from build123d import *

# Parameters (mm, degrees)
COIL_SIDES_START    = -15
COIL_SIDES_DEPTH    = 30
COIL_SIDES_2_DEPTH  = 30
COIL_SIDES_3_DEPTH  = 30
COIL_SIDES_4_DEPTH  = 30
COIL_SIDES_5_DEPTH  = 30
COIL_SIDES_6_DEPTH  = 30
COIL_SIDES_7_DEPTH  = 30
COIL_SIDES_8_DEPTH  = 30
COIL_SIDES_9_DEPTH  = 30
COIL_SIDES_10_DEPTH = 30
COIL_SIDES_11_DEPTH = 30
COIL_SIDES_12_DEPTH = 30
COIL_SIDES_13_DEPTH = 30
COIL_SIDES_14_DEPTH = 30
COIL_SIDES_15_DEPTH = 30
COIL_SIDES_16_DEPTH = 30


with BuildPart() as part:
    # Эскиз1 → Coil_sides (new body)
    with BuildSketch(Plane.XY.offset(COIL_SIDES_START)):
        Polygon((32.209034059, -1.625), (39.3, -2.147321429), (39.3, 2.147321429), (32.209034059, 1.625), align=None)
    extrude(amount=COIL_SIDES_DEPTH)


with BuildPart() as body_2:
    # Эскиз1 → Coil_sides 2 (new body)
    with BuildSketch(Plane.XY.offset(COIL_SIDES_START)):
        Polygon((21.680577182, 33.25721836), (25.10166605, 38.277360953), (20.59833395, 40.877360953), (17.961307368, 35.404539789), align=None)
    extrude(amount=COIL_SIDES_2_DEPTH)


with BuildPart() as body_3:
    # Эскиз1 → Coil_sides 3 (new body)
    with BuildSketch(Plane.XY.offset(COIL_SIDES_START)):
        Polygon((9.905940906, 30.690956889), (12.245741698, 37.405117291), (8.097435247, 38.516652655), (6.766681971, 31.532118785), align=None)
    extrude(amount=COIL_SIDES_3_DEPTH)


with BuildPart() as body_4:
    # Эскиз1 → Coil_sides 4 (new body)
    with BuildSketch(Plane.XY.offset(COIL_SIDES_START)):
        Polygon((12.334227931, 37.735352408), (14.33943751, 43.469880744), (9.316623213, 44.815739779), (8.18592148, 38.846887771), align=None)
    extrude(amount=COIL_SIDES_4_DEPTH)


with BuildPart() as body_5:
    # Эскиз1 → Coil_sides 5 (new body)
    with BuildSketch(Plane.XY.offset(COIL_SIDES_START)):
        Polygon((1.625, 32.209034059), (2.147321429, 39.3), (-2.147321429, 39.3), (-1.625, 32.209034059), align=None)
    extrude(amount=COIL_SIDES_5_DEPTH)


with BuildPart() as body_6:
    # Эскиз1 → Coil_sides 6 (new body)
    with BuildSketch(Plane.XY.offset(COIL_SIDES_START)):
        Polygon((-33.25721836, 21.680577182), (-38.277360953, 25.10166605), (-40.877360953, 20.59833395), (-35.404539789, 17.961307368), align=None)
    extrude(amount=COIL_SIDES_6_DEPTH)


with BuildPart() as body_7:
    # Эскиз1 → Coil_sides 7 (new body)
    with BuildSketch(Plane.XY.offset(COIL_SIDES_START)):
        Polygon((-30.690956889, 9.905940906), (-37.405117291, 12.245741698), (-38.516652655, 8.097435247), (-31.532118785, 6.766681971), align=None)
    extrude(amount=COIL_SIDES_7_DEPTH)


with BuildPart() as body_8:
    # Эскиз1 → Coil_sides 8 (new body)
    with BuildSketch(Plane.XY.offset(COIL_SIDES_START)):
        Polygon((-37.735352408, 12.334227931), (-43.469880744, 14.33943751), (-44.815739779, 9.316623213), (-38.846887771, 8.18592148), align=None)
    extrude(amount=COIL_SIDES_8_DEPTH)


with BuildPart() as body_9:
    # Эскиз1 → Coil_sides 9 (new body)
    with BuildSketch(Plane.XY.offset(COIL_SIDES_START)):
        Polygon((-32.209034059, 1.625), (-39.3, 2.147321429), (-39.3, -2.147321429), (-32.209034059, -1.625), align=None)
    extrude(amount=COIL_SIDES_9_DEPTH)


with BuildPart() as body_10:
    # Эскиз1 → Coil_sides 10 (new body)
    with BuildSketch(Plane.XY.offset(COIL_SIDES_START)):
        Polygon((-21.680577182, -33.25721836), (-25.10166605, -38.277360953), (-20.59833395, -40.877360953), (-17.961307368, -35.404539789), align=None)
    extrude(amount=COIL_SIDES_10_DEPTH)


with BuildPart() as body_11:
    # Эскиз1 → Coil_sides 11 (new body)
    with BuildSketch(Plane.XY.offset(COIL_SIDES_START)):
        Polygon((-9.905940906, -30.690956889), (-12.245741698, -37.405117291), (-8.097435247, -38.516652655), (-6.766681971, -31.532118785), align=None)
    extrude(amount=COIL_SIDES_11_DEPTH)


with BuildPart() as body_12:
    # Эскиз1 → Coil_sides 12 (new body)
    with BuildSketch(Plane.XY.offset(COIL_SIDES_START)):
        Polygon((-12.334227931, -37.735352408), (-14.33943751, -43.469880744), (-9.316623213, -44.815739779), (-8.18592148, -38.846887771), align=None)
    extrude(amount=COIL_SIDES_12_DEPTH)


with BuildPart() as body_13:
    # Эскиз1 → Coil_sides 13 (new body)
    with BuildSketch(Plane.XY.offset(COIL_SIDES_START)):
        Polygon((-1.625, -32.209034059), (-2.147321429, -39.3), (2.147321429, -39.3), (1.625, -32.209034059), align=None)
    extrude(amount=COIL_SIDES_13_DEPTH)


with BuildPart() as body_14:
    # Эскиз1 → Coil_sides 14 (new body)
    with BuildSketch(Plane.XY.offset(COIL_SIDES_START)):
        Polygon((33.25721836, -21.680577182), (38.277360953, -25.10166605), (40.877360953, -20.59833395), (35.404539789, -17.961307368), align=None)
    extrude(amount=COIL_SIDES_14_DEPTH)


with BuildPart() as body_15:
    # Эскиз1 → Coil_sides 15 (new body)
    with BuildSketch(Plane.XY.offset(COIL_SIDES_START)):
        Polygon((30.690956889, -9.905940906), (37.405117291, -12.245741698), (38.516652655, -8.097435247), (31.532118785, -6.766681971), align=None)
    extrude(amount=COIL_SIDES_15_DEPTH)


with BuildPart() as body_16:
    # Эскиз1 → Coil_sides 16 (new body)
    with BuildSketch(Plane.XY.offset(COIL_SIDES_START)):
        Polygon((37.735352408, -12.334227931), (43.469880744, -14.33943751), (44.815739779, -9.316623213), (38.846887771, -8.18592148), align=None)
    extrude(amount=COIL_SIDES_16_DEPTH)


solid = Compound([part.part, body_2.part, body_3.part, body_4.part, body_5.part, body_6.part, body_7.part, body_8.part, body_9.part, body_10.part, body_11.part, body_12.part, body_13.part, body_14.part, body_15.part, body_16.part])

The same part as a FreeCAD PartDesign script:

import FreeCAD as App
import Part
import Sketcher
Q = App.Units.Quantity

doc = App.newDocument("Part")
params = doc.addObject("Spreadsheet::Sheet", "Params")
for row, (alias, value) in enumerate([
    ("sketch1_height", "3.25 mm"),
    ("pad1_length", "30 mm"),
    ("sketch2_length", "5.2 mm"),
    ("pad2_length", "30 mm"),
    ("sketch3_length", "3.25 mm"),
    ("pad3_length", "30 mm"),
    ("sketch4_length", "5.2 mm"),
    ("pad4_length", "30 mm"),
    ("sketch5_width", "3.25 mm"),
    ("pad5_length", "30 mm"),
    ("sketch6_length", "5.2 mm"),
    ("pad6_length", "30 mm"),
    ("sketch7_length", "3.25 mm"),
    ("pad7_length", "30 mm"),
    ("sketch8_length", "5.2 mm"),
    ("pad8_length", "30 mm"),
    ("sketch9_height", "3.25 mm"),
    ("pad9_length", "30 mm"),
    ("sketch10_length", "5.2 mm"),
    ("pad10_length", "30 mm"),
    ("sketch11_length", "3.25 mm"),
    ("pad11_length", "30 mm"),
    ("sketch12_length", "5.2 mm"),
    ("pad12_length", "30 mm"),
    ("sketch13_width", "3.25 mm"),
    ("pad13_length", "30 mm"),
    ("sketch14_length", "5.2 mm"),
    ("pad14_length", "30 mm"),
    ("sketch15_length", "3.25 mm"),
    ("pad15_length", "30 mm"),
    ("sketch16_length", "5.2 mm"),
    ("pad16_length", "30 mm"),
], start=1):
    params.set(f"A{row}", alias)
    params.set(f"B{row}", "=" + value)
    params.setAlias(f"B{row}", alias)

body = doc.addObject("PartDesign::Body", "Body")

sketch1 = body.newObject("Sketcher::SketchObject", "Sketch")
sketch1.AttachmentSupport = (doc.getObject("XY_Plane"), [""])
sketch1.MapMode = "FlatFace"
sketch1.AttachmentOffset = App.Placement(App.Vector(0, 0, -15), App.Rotation())
sketch1.addGeometry(Part.LineSegment(App.Vector(32.2, -1.6, 0), App.Vector(39.3, -2.1, 0)), False)
sketch1.addGeometry(Part.LineSegment(App.Vector(39.3, -2.1, 0), App.Vector(39.3, 2.1, 0)), False)
sketch1.addGeometry(Part.LineSegment(App.Vector(39.3, 2.1, 0), App.Vector(32.2, 1.6, 0)), False)
sketch1.addGeometry(Part.LineSegment(App.Vector(32.2, 1.6, 0), App.Vector(32.2, -1.6, 0)), False)
sketch1.addConstraint(Sketcher.Constraint("Coincident", 0, 2, 1, 1))
sketch1.addConstraint(Sketcher.Constraint("Coincident", 1, 2, 2, 1))
sketch1.addConstraint(Sketcher.Constraint("Coincident", 2, 2, 3, 1))
sketch1.addConstraint(Sketcher.Constraint("Coincident", 3, 2, 0, 1))
sketch1.addConstraint(Sketcher.Constraint("Vertical", 1))
sketch1.addConstraint(Sketcher.Constraint("Vertical", 3))
sketch1.addConstraint(Sketcher.Constraint("Equal", 0, 2))
sketch1.addConstraint(Sketcher.Constraint("DistanceY", 3, 2, 3, 1, Q("3.25 mm")))
sketch1.addConstraint(Sketcher.Constraint("DistanceX", -1, 1, 0, 2, Q("39.3 mm")))
sketch1.addConstraint(Sketcher.Constraint("DistanceY", -1, 1, 2, 2, Q("1.625 mm")))
sketch1.addConstraint(Sketcher.Constraint("DistanceY", 1, 1, 1, 2, Q("4.294643 mm")))
sketch1.addConstraint(Sketcher.Constraint("Distance", 0, Q("7.110177 mm")))
sketch1.setExpression("Constraints[7]", "Params.sketch1_height")
pad1 = body.newObject("PartDesign::Pad", "Pad")
pad1.Profile = sketch1
pad1.setExpression("Length", "Params.pad1_length")
body2 = doc.addObject("PartDesign::Body", "Body001")

sketch2 = body2.newObject("Sketcher::SketchObject", "Sketch001")
sketch2.AttachmentSupport = (doc.getObject("XY_Plane001"), [""])
sketch2.MapMode = "FlatFace"
sketch2.AttachmentOffset = App.Placement(App.Vector(0, 0, -15), App.Rotation())
sketch2.addGeometry(Part.LineSegment(App.Vector(21.7, 33.3, 0), App.Vector(25.1, 38.3, 0)), False)
sketch2.addGeometry(Part.LineSegment(App.Vector(25.1, 38.3, 0), App.Vector(20.6, 40.9, 0)), False)
sketch2.addGeometry(Part.LineSegment(App.Vector(20.6, 40.9, 0), App.Vector(18, 35.4, 0)), False)
sketch2.addGeometry(Part.LineSegment(App.Vector(18, 35.4, 0), App.Vector(21.7, 33.3, 0)), False)
sketch2.addConstraint(Sketcher.Constraint("Coincident", 0, 2, 1, 1))
sketch2.addConstraint(Sketcher.Constraint("Coincident", 1, 2, 2, 1))
sketch2.addConstraint(Sketcher.Constraint("Coincident", 2, 2, 3, 1))
sketch2.addConstraint(Sketcher.Constraint("Coincident", 3, 2, 0, 1))
sketch2.addConstraint(Sketcher.Constraint("Parallel", 1, 3))
sketch2.addConstraint(Sketcher.Constraint("Equal", 0, 2))
sketch2.addConstraint(Sketcher.Constraint("Angle", 1, Q("150 deg")))
sketch2.addConstraint(Sketcher.Constraint("Distance", 1, Q("5.2 mm")))
sketch2.addConstraint(Sketcher.Constraint("DistanceY", -1, 1, 0, 2, Q("38.277361 mm")))
sketch2.addConstraint(Sketcher.Constraint("DistanceY", -1, 1, 2, 2, Q("35.40454 mm")))
sketch2.addConstraint(Sketcher.Constraint("DistanceY", -1, 1, 3, 2, Q("33.257218 mm")))
sketch2.addConstraint(Sketcher.Constraint("DistanceX", -1, 1, 0, 2, Q("25.101666 mm")))
sketch2.setExpression("Constraints[7]", "Params.sketch2_length")
pad2 = body2.newObject("PartDesign::Pad", "Pad001")
pad2.Profile = sketch2
pad2.setExpression("Length", "Params.pad2_length")
body3 = doc.addObject("PartDesign::Body", "Body002")

sketch3 = body3.newObject("Sketcher::SketchObject", "Sketch002")
sketch3.AttachmentSupport = (doc.getObject("XY_Plane002"), [""])
sketch3.MapMode = "FlatFace"
sketch3.AttachmentOffset = App.Placement(App.Vector(0, 0, -15), App.Rotation())
sketch3.addGeometry(Part.LineSegment(App.Vector(9.9, 30.7, 0), App.Vector(12.2, 37.4, 0)), False)
sketch3.addGeometry(Part.LineSegment(App.Vector(12.2, 37.4, 0), App.Vector(8.1, 38.5, 0)), False)
sketch3.addGeometry(Part.LineSegment(App.Vector(8.1, 38.5, 0), App.Vector(6.8, 31.5, 0)), False)
sketch3.addGeometry(Part.LineSegment(App.Vector(6.8, 31.5, 0), App.Vector(9.9, 30.7, 0)), False)
sketch3.addConstraint(Sketcher.Constraint("Coincident", 0, 2, 1, 1))
sketch3.addConstraint(Sketcher.Constraint("Coincident", 1, 2, 2, 1))
sketch3.addConstraint(Sketcher.Constraint("Coincident", 2, 2, 3, 1))
sketch3.addConstraint(Sketcher.Constraint("Coincident", 3, 2, 0, 1))
sketch3.addConstraint(Sketcher.Constraint("Parallel", 1, 3))
sketch3.addConstraint(Sketcher.Constraint("Equal", 0, 2))
sketch3.addConstraint(Sketcher.Constraint("Angle", 1, Q("165 deg")))
sketch3.addConstraint(Sketcher.Constraint("Distance", 3, Q("3.25 mm")))
sketch3.addConstraint(Sketcher.Constraint("DistanceY", 2, 2, 0, 2, Q("5.872999 mm")))
sketch3.addConstraint(Sketcher.Constraint("DistanceX", 3, 2, 0, 2, Q("2.339801 mm")))
sketch3.addConstraint(Sketcher.Constraint("DistanceX", -1, 1, 0, 2, Q("12.245742 mm")))
sketch3.addConstraint(Sketcher.Constraint("DistanceY", -1, 1, 2, 2, Q("31.532119 mm")))
sketch3.setExpression("Constraints[7]", "Params.sketch3_length")
pad3 = body3.newObject("PartDesign::Pad", "Pad002")
pad3.Profile = sketch3
pad3.setExpression("Length", "Params.pad3_length")
body4 = doc.addObject("PartDesign::Body", "Body003")

sketch4 = body4.newObject("Sketcher::SketchObject", "Sketch003")
sketch4.AttachmentSupport = (doc.getObject("XY_Plane003"), [""])
sketch4.MapMode = "FlatFace"
sketch4.AttachmentOffset = App.Placement(App.Vector(0, 0, -15), App.Rotation())
sketch4.addGeometry(Part.LineSegment(App.Vector(12.3, 37.7, 0), App.Vector(14.3, 43.5, 0)), False)
sketch4.addGeometry(Part.LineSegment(App.Vector(14.3, 43.5, 0), App.Vector(9.3, 44.8, 0)), False)
sketch4.addGeometry(Part.LineSegment(App.Vector(9.3, 44.8, 0), App.Vector(8.2, 38.8, 0)), False)
sketch4.addGeometry(Part.LineSegment(App.Vector(8.2, 38.8, 0), App.Vector(12.3, 37.7, 0)), False)
sketch4.addConstraint(Sketcher.Constraint("Coincident", 0, 2, 1, 1))
sketch4.addConstraint(Sketcher.Constraint("Coincident", 1, 2, 2, 1))
sketch4.addConstraint(Sketcher.Constraint("Coincident", 2, 2, 3, 1))
sketch4.addConstraint(Sketcher.Constraint("Coincident", 3, 2, 0, 1))
sketch4.addConstraint(Sketcher.Constraint("Parallel", 1, 3))
sketch4.addConstraint(Sketcher.Constraint("Equal", 0, 2))
sketch4.addConstraint(Sketcher.Constraint("Angle", 1, Q("165 deg")))
sketch4.addConstraint(Sketcher.Constraint("Distance", 1, Q("5.2 mm")))
sketch4.addConstraint(Sketcher.Constraint("DistanceX", 2, 2, 1, 2, Q("1.130702 mm")))
sketch4.addConstraint(Sketcher.Constraint("DistanceY", -1, 1, 0, 2, Q("43.469881 mm")))
sketch4.addConstraint(Sketcher.Constraint("DistanceX", -1, 1, 2, 2, Q("8.185921 mm")))
sketch4.addConstraint(Sketcher.Constraint("DistanceX", 3, 2, 0, 2, Q("2.00521 mm")))
sketch4.setExpression("Constraints[7]", "Params.sketch4_length")
pad4 = body4.newObject("PartDesign::Pad", "Pad003")
pad4.Profile = sketch4
pad4.setExpression("Length", "Params.pad4_length")
body5 = doc.addObject("PartDesign::Body", "Body004")

sketch5 = body5.newObject("Sketcher::SketchObject", "Sketch004")
sketch5.AttachmentSupport = (doc.getObject("XY_Plane004"), [""])
sketch5.MapMode = "FlatFace"
sketch5.AttachmentOffset = App.Placement(App.Vector(0, 0, -15), App.Rotation())
sketch5.addGeometry(Part.LineSegment(App.Vector(1.6, 32.2, 0), App.Vector(2.1, 39.3, 0)), False)
sketch5.addGeometry(Part.LineSegment(App.Vector(2.1, 39.3, 0), App.Vector(-2.1, 39.3, 0)), False)
sketch5.addGeometry(Part.LineSegment(App.Vector(-2.1, 39.3, 0), App.Vector(-1.6, 32.2, 0)), False)
sketch5.addGeometry(Part.LineSegment(App.Vector(-1.6, 32.2, 0), App.Vector(1.6, 32.2, 0)), False)
sketch5.addConstraint(Sketcher.Constraint("Coincident", 0, 2, 1, 1))
sketch5.addConstraint(Sketcher.Constraint("Coincident", 1, 2, 2, 1))
sketch5.addConstraint(Sketcher.Constraint("Coincident", 2, 2, 3, 1))
sketch5.addConstraint(Sketcher.Constraint("Coincident", 3, 2, 0, 1))
sketch5.addConstraint(Sketcher.Constraint("Horizontal", 1))
sketch5.addConstraint(Sketcher.Constraint("Horizontal", 3))
sketch5.addConstraint(Sketcher.Constraint("Equal", 0, 2))
sketch5.addConstraint(Sketcher.Constraint("DistanceX", 3, 1, 3, 2, Q("3.25 mm")))
sketch5.addConstraint(Sketcher.Constraint("DistanceY", -1, 1, 0, 2, Q("39.3 mm")))
sketch5.addConstraint(Sketcher.Constraint("DistanceX", 2, 2, -1, 1, Q("1.625 mm")))
sketch5.addConstraint(Sketcher.Constraint("DistanceX", 1, 2, 1, 1, Q("4.294643 mm")))
sketch5.addConstraint(Sketcher.Constraint("Distance", 0, Q("7.110177 mm")))
sketch5.setExpression("Constraints[7]", "Params.sketch5_width")
pad5 = body5.newObject("PartDesign::Pad", "Pad004")
pad5.Profile = sketch5
pad5.setExpression("Length", "Params.pad5_length")
body6 = doc.addObject("PartDesign::Body", "Body005")

sketch6 = body6.newObject("Sketcher::SketchObject", "Sketch005")
sketch6.AttachmentSupport = (doc.getObject("XY_Plane005"), [""])
sketch6.MapMode = "FlatFace"
sketch6.AttachmentOffset = App.Placement(App.Vector(0, 0, -15), App.Rotation())
sketch6.addGeometry(Part.LineSegment(App.Vector(-33.3, 21.7, 0), App.Vector(-38.3, 25.1, 0)), False)
sketch6.addGeometry(Part.LineSegment(App.Vector(-38.3, 25.1, 0), App.Vector(-40.9, 20.6, 0)), False)
sketch6.addGeometry(Part.LineSegment(App.Vector(-40.9, 20.6, 0), App.Vector(-35.4, 18, 0)), False)
sketch6.addGeometry(Part.LineSegment(App.Vector(-35.4, 18, 0), App.Vector(-33.3, 21.7, 0)), False)
sketch6.addConstraint(Sketcher.Constraint("Coincident", 0, 2, 1, 1))
sketch6.addConstraint(Sketcher.Constraint("Coincident", 1, 2, 2, 1))
sketch6.addConstraint(Sketcher.Constraint("Coincident", 2, 2, 3, 1))
sketch6.addConstraint(Sketcher.Constraint("Coincident", 3, 2, 0, 1))
sketch6.addConstraint(Sketcher.Constraint("Parallel", 1, 3))
sketch6.addConstraint(Sketcher.Constraint("Equal", 0, 2))
sketch6.addConstraint(Sketcher.Constraint("Angle", 1, Q("-120 deg")))
sketch6.addConstraint(Sketcher.Constraint("Distance", 1, Q("5.2 mm")))
sketch6.addConstraint(Sketcher.Constraint("DistanceX", 0, 2, -1, 1, Q("38.277361 mm")))
sketch6.addConstraint(Sketcher.Constraint("DistanceX", 2, 2, -1, 1, Q("35.40454 mm")))
sketch6.addConstraint(Sketcher.Constraint("DistanceX", 3, 2, -1, 1, Q("33.257218 mm")))
sketch6.addConstraint(Sketcher.Constraint("DistanceY", -1, 1, 0, 2, Q("25.101666 mm")))
sketch6.setExpression("Constraints[7]", "Params.sketch6_length")
pad6 = body6.newObject("PartDesign::Pad", "Pad005")
pad6.Profile = sketch6
pad6.setExpression("Length", "Params.pad6_length")
body7 = doc.addObject("PartDesign::Body", "Body006")

sketch7 = body7.newObject("Sketcher::SketchObject", "Sketch006")
sketch7.AttachmentSupport = (doc.getObject("XY_Plane006"), [""])
sketch7.MapMode = "FlatFace"
sketch7.AttachmentOffset = App.Placement(App.Vector(0, 0, -15), App.Rotation())
sketch7.addGeometry(Part.LineSegment(App.Vector(-30.7, 9.9, 0), App.Vector(-37.4, 12.2, 0)), False)
sketch7.addGeometry(Part.LineSegment(App.Vector(-37.4, 12.2, 0), App.Vector(-38.5, 8.1, 0)), False)
sketch7.addGeometry(Part.LineSegment(App.Vector(-38.5, 8.1, 0), App.Vector(-31.5, 6.8, 0)), False)
sketch7.addGeometry(Part.LineSegment(App.Vector(-31.5, 6.8, 0), App.Vector(-30.7, 9.9, 0)), False)
sketch7.addConstraint(Sketcher.Constraint("Coincident", 0, 2, 1, 1))
sketch7.addConstraint(Sketcher.Constraint("Coincident", 1, 2, 2, 1))
sketch7.addConstraint(Sketcher.Constraint("Coincident", 2, 2, 3, 1))
sketch7.addConstraint(Sketcher.Constraint("Coincident", 3, 2, 0, 1))
sketch7.addConstraint(Sketcher.Constraint("Parallel", 1, 3))
sketch7.addConstraint(Sketcher.Constraint("Equal", 0, 2))
sketch7.addConstraint(Sketcher.Constraint("Angle", 1, Q("-105 deg")))
sketch7.addConstraint(Sketcher.Constraint("Distance", 3, Q("3.25 mm")))
sketch7.addConstraint(Sketcher.Constraint("DistanceX", 0, 2, 2, 2, Q("5.872999 mm")))
sketch7.addConstraint(Sketcher.Constraint("DistanceY", 3, 2, 0, 2, Q("2.339801 mm")))
sketch7.addConstraint(Sketcher.Constraint("DistanceY", -1, 1, 0, 2, Q("12.245742 mm")))
sketch7.addConstraint(Sketcher.Constraint("DistanceX", 2, 2, -1, 1, Q("31.532119 mm")))
sketch7.setExpression("Constraints[7]", "Params.sketch7_length")
pad7 = body7.newObject("PartDesign::Pad", "Pad006")
pad7.Profile = sketch7
pad7.setExpression("Length", "Params.pad7_length")
body8 = doc.addObject("PartDesign::Body", "Body007")

sketch8 = body8.newObject("Sketcher::SketchObject", "Sketch007")
sketch8.AttachmentSupport = (doc.getObject("XY_Plane007"), [""])
sketch8.MapMode = "FlatFace"
sketch8.AttachmentOffset = App.Placement(App.Vector(0, 0, -15), App.Rotation())
sketch8.addGeometry(Part.LineSegment(App.Vector(-37.7, 12.3, 0), App.Vector(-43.5, 14.3, 0)), False)
sketch8.addGeometry(Part.LineSegment(App.Vector(-43.5, 14.3, 0), App.Vector(-44.8, 9.3, 0)), False)
sketch8.addGeometry(Part.LineSegment(App.Vector(-44.8, 9.3, 0), App.Vector(-38.8, 8.2, 0)), False)
sketch8.addGeometry(Part.LineSegment(App.Vector(-38.8, 8.2, 0), App.Vector(-37.7, 12.3, 0)), False)
sketch8.addConstraint(Sketcher.Constraint("Coincident", 0, 2, 1, 1))
sketch8.addConstraint(Sketcher.Constraint("Coincident", 1, 2, 2, 1))
sketch8.addConstraint(Sketcher.Constraint("Coincident", 2, 2, 3, 1))
sketch8.addConstraint(Sketcher.Constraint("Coincident", 3, 2, 0, 1))
sketch8.addConstraint(Sketcher.Constraint("Parallel", 1, 3))
sketch8.addConstraint(Sketcher.Constraint("Equal", 0, 2))
sketch8.addConstraint(Sketcher.Constraint("Angle", 1, Q("-105 deg")))
sketch8.addConstraint(Sketcher.Constraint("Distance", 1, Q("5.2 mm")))
sketch8.addConstraint(Sketcher.Constraint("DistanceY", 2, 2, 1, 2, Q("1.130702 mm")))
sketch8.addConstraint(Sketcher.Constraint("DistanceX", 0, 2, -1, 1, Q("43.469881 mm")))
sketch8.addConstraint(Sketcher.Constraint("DistanceY", -1, 1, 2, 2, Q("8.185921 mm")))
sketch8.addConstraint(Sketcher.Constraint("DistanceX", 0, 2, 3, 2, Q("5.734528 mm")))
sketch8.setExpression("Constraints[7]", "Params.sketch8_length")
pad8 = body8.newObject("PartDesign::Pad", "Pad007")
pad8.Profile = sketch8
pad8.setExpression("Length", "Params.pad8_length")
body9 = doc.addObject("PartDesign::Body", "Body008")

sketch9 = body9.newObject("Sketcher::SketchObject", "Sketch008")
sketch9.AttachmentSupport = (doc.getObject("XY_Plane008"), [""])
sketch9.MapMode = "FlatFace"
sketch9.AttachmentOffset = App.Placement(App.Vector(0, 0, -15), App.Rotation())
sketch9.addGeometry(Part.LineSegment(App.Vector(-32.2, 1.6, 0), App.Vector(-39.3, 2.1, 0)), False)
sketch9.addGeometry(Part.LineSegment(App.Vector(-39.3, 2.1, 0), App.Vector(-39.3, -2.1, 0)), False)
sketch9.addGeometry(Part.LineSegment(App.Vector(-39.3, -2.1, 0), App.Vector(-32.2, -1.6, 0)), False)
sketch9.addGeometry(Part.LineSegment(App.Vector(-32.2, -1.6, 0), App.Vector(-32.2, 1.6, 0)), False)
sketch9.addConstraint(Sketcher.Constraint("Coincident", 0, 2, 1, 1))
sketch9.addConstraint(Sketcher.Constraint("Coincident", 1, 2, 2, 1))
sketch9.addConstraint(Sketcher.Constraint("Coincident", 2, 2, 3, 1))
sketch9.addConstraint(Sketcher.Constraint("Coincident", 3, 2, 0, 1))
sketch9.addConstraint(Sketcher.Constraint("Vertical", 1))
sketch9.addConstraint(Sketcher.Constraint("Vertical", 3))
sketch9.addConstraint(Sketcher.Constraint("Equal", 0, 2))
sketch9.addConstraint(Sketcher.Constraint("DistanceY", 3, 1, 3, 2, Q("3.25 mm")))
sketch9.addConstraint(Sketcher.Constraint("DistanceX", 0, 2, -1, 1, Q("39.3 mm")))
sketch9.addConstraint(Sketcher.Constraint("DistanceY", 2, 2, -1, 1, Q("1.625 mm")))
sketch9.addConstraint(Sketcher.Constraint("DistanceY", 1, 2, 1, 1, Q("4.294643 mm")))
sketch9.addConstraint(Sketcher.Constraint("Distance", 0, Q("7.110177 mm")))
sketch9.setExpression("Constraints[7]", "Params.sketch9_height")
pad9 = body9.newObject("PartDesign::Pad", "Pad008")
pad9.Profile = sketch9
pad9.setExpression("Length", "Params.pad9_length")
body10 = doc.addObject("PartDesign::Body", "Body009")

sketch10 = body10.newObject("Sketcher::SketchObject", "Sketch009")
sketch10.AttachmentSupport = (doc.getObject("XY_Plane009"), [""])
sketch10.MapMode = "FlatFace"
sketch10.AttachmentOffset = App.Placement(App.Vector(0, 0, -15), App.Rotation())
sketch10.addGeometry(Part.LineSegment(App.Vector(-21.7, -33.3, 0), App.Vector(-25.1, -38.3, 0)), False)
sketch10.addGeometry(Part.LineSegment(App.Vector(-25.1, -38.3, 0), App.Vector(-20.6, -40.9, 0)), False)
sketch10.addGeometry(Part.LineSegment(App.Vector(-20.6, -40.9, 0), App.Vector(-18, -35.4, 0)), False)
sketch10.addGeometry(Part.LineSegment(App.Vector(-18, -35.4, 0), App.Vector(-21.7, -33.3, 0)), False)
sketch10.addConstraint(Sketcher.Constraint("Coincident", 0, 2, 1, 1))
sketch10.addConstraint(Sketcher.Constraint("Coincident", 1, 2, 2, 1))
sketch10.addConstraint(Sketcher.Constraint("Coincident", 2, 2, 3, 1))
sketch10.addConstraint(Sketcher.Constraint("Coincident", 3, 2, 0, 1))
sketch10.addConstraint(Sketcher.Constraint("Parallel", 1, 3))
sketch10.addConstraint(Sketcher.Constraint("Equal", 0, 2))
sketch10.addConstraint(Sketcher.Constraint("Angle", 1, Q("-30 deg")))
sketch10.addConstraint(Sketcher.Constraint("Distance", 1, Q("5.2 mm")))
sketch10.addConstraint(Sketcher.Constraint("DistanceY", 0, 2, -1, 1, Q("38.277361 mm")))
sketch10.addConstraint(Sketcher.Constraint("DistanceY", 2, 2, -1, 1, Q("35.40454 mm")))
sketch10.addConstraint(Sketcher.Constraint("DistanceY", 3, 2, -1, 1, Q("33.257218 mm")))
sketch10.addConstraint(Sketcher.Constraint("DistanceX", 0, 2, -1, 1, Q("25.101666 mm")))
sketch10.setExpression("Constraints[7]", "Params.sketch10_length")
pad10 = body10.newObject("PartDesign::Pad", "Pad009")
pad10.Profile = sketch10
pad10.setExpression("Length", "Params.pad10_length")
body11 = doc.addObject("PartDesign::Body", "Body010")

sketch11 = body11.newObject("Sketcher::SketchObject", "Sketch010")
sketch11.AttachmentSupport = (doc.getObject("XY_Plane010"), [""])
sketch11.MapMode = "FlatFace"
sketch11.AttachmentOffset = App.Placement(App.Vector(0, 0, -15), App.Rotation())
sketch11.addGeometry(Part.LineSegment(App.Vector(-9.9, -30.7, 0), App.Vector(-12.2, -37.4, 0)), False)
sketch11.addGeometry(Part.LineSegment(App.Vector(-12.2, -37.4, 0), App.Vector(-8.1, -38.5, 0)), False)
sketch11.addGeometry(Part.LineSegment(App.Vector(-8.1, -38.5, 0), App.Vector(-6.8, -31.5, 0)), False)
sketch11.addGeometry(Part.LineSegment(App.Vector(-6.8, -31.5, 0), App.Vector(-9.9, -30.7, 0)), False)
sketch11.addConstraint(Sketcher.Constraint("Coincident", 0, 2, 1, 1))
sketch11.addConstraint(Sketcher.Constraint("Coincident", 1, 2, 2, 1))
sketch11.addConstraint(Sketcher.Constraint("Coincident", 2, 2, 3, 1))
sketch11.addConstraint(Sketcher.Constraint("Coincident", 3, 2, 0, 1))
sketch11.addConstraint(Sketcher.Constraint("Parallel", 1, 3))
sketch11.addConstraint(Sketcher.Constraint("Equal", 0, 2))
sketch11.addConstraint(Sketcher.Constraint("Angle", 1, Q("-15 deg")))
sketch11.addConstraint(Sketcher.Constraint("Distance", 3, Q("3.25 mm")))
sketch11.addConstraint(Sketcher.Constraint("DistanceY", 0, 2, 2, 2, Q("5.872999 mm")))
sketch11.addConstraint(Sketcher.Constraint("DistanceX", 0, 2, 3, 2, Q("2.339801 mm")))
sketch11.addConstraint(Sketcher.Constraint("DistanceX", 0, 2, -1, 1, Q("12.245742 mm")))
sketch11.addConstraint(Sketcher.Constraint("DistanceY", 2, 2, -1, 1, Q("31.532119 mm")))
sketch11.setExpression("Constraints[7]", "Params.sketch11_length")
pad11 = body11.newObject("PartDesign::Pad", "Pad010")
pad11.Profile = sketch11
pad11.setExpression("Length", "Params.pad11_length")
body12 = doc.addObject("PartDesign::Body", "Body011")

sketch12 = body12.newObject("Sketcher::SketchObject", "Sketch011")
sketch12.AttachmentSupport = (doc.getObject("XY_Plane011"), [""])
sketch12.MapMode = "FlatFace"
sketch12.AttachmentOffset = App.Placement(App.Vector(0, 0, -15), App.Rotation())
sketch12.addGeometry(Part.LineSegment(App.Vector(-12.3, -37.7, 0), App.Vector(-14.3, -43.5, 0)), False)
sketch12.addGeometry(Part.LineSegment(App.Vector(-14.3, -43.5, 0), App.Vector(-9.3, -44.8, 0)), False)
sketch12.addGeometry(Part.LineSegment(App.Vector(-9.3, -44.8, 0), App.Vector(-8.2, -38.8, 0)), False)
sketch12.addGeometry(Part.LineSegment(App.Vector(-8.2, -38.8, 0), App.Vector(-12.3, -37.7, 0)), False)
sketch12.addConstraint(Sketcher.Constraint("Coincident", 0, 2, 1, 1))
sketch12.addConstraint(Sketcher.Constraint("Coincident", 1, 2, 2, 1))
sketch12.addConstraint(Sketcher.Constraint("Coincident", 2, 2, 3, 1))
sketch12.addConstraint(Sketcher.Constraint("Coincident", 3, 2, 0, 1))
sketch12.addConstraint(Sketcher.Constraint("Parallel", 1, 3))
sketch12.addConstraint(Sketcher.Constraint("Equal", 0, 2))
sketch12.addConstraint(Sketcher.Constraint("Angle", 1, Q("-15 deg")))
sketch12.addConstraint(Sketcher.Constraint("Distance", 1, Q("5.2 mm")))
sketch12.addConstraint(Sketcher.Constraint("DistanceX", 1, 2, 2, 2, Q("1.130702 mm")))
sketch12.addConstraint(Sketcher.Constraint("DistanceY", 0, 2, -1, 1, Q("43.469881 mm")))
sketch12.addConstraint(Sketcher.Constraint("DistanceX", 2, 2, -1, 1, Q("8.185921 mm")))
sketch12.addConstraint(Sketcher.Constraint("DistanceX", 0, 2, 3, 2, Q("2.00521 mm")))
sketch12.setExpression("Constraints[7]", "Params.sketch12_length")
pad12 = body12.newObject("PartDesign::Pad", "Pad011")
pad12.Profile = sketch12
pad12.setExpression("Length", "Params.pad12_length")
body13 = doc.addObject("PartDesign::Body", "Body012")

sketch13 = body13.newObject("Sketcher::SketchObject", "Sketch012")
sketch13.AttachmentSupport = (doc.getObject("XY_Plane012"), [""])
sketch13.MapMode = "FlatFace"
sketch13.AttachmentOffset = App.Placement(App.Vector(0, 0, -15), App.Rotation())
sketch13.addGeometry(Part.LineSegment(App.Vector(-1.6, -32.2, 0), App.Vector(-2.1, -39.3, 0)), False)
sketch13.addGeometry(Part.LineSegment(App.Vector(-2.1, -39.3, 0), App.Vector(2.1, -39.3, 0)), False)
sketch13.addGeometry(Part.LineSegment(App.Vector(2.1, -39.3, 0), App.Vector(1.6, -32.2, 0)), False)
sketch13.addGeometry(Part.LineSegment(App.Vector(1.6, -32.2, 0), App.Vector(-1.6, -32.2, 0)), False)
sketch13.addConstraint(Sketcher.Constraint("Coincident", 0, 2, 1, 1))
sketch13.addConstraint(Sketcher.Constraint("Coincident", 1, 2, 2, 1))
sketch13.addConstraint(Sketcher.Constraint("Coincident", 2, 2, 3, 1))
sketch13.addConstraint(Sketcher.Constraint("Coincident", 3, 2, 0, 1))
sketch13.addConstraint(Sketcher.Constraint("Horizontal", 1))
sketch13.addConstraint(Sketcher.Constraint("Horizontal", 3))
sketch13.addConstraint(Sketcher.Constraint("Equal", 0, 2))
sketch13.addConstraint(Sketcher.Constraint("DistanceX", 3, 2, 3, 1, Q("3.25 mm")))
sketch13.addConstraint(Sketcher.Constraint("DistanceY", 0, 2, -1, 1, Q("39.3 mm")))
sketch13.addConstraint(Sketcher.Constraint("DistanceX", -1, 1, 2, 2, Q("1.625 mm")))
sketch13.addConstraint(Sketcher.Constraint("DistanceX", 1, 1, 1, 2, Q("4.294643 mm")))
sketch13.addConstraint(Sketcher.Constraint("Distance", 0, Q("7.110177 mm")))
sketch13.setExpression("Constraints[7]", "Params.sketch13_width")
pad13 = body13.newObject("PartDesign::Pad", "Pad012")
pad13.Profile = sketch13
pad13.setExpression("Length", "Params.pad13_length")
body14 = doc.addObject("PartDesign::Body", "Body013")

sketch14 = body14.newObject("Sketcher::SketchObject", "Sketch013")
sketch14.AttachmentSupport = (doc.getObject("XY_Plane013"), [""])
sketch14.MapMode = "FlatFace"
sketch14.AttachmentOffset = App.Placement(App.Vector(0, 0, -15), App.Rotation())
sketch14.addGeometry(Part.LineSegment(App.Vector(33.3, -21.7, 0), App.Vector(38.3, -25.1, 0)), False)
sketch14.addGeometry(Part.LineSegment(App.Vector(38.3, -25.1, 0), App.Vector(40.9, -20.6, 0)), False)
sketch14.addGeometry(Part.LineSegment(App.Vector(40.9, -20.6, 0), App.Vector(35.4, -18, 0)), False)
sketch14.addGeometry(Part.LineSegment(App.Vector(35.4, -18, 0), App.Vector(33.3, -21.7, 0)), False)
sketch14.addConstraint(Sketcher.Constraint("Coincident", 0, 2, 1, 1))
sketch14.addConstraint(Sketcher.Constraint("Coincident", 1, 2, 2, 1))
sketch14.addConstraint(Sketcher.Constraint("Coincident", 2, 2, 3, 1))
sketch14.addConstraint(Sketcher.Constraint("Coincident", 3, 2, 0, 1))
sketch14.addConstraint(Sketcher.Constraint("Parallel", 1, 3))
sketch14.addConstraint(Sketcher.Constraint("Equal", 0, 2))
sketch14.addConstraint(Sketcher.Constraint("Angle", 1, Q("60 deg")))
sketch14.addConstraint(Sketcher.Constraint("Distance", 1, Q("5.2 mm")))
sketch14.addConstraint(Sketcher.Constraint("DistanceX", -1, 1, 0, 2, Q("38.277361 mm")))
sketch14.addConstraint(Sketcher.Constraint("DistanceX", -1, 1, 2, 2, Q("35.40454 mm")))
sketch14.addConstraint(Sketcher.Constraint("DistanceX", -1, 1, 3, 2, Q("33.257218 mm")))
sketch14.addConstraint(Sketcher.Constraint("DistanceY", 0, 2, -1, 1, Q("25.101666 mm")))
sketch14.setExpression("Constraints[7]", "Params.sketch14_length")
pad14 = body14.newObject("PartDesign::Pad", "Pad013")
pad14.Profile = sketch14
pad14.setExpression("Length", "Params.pad14_length")
body15 = doc.addObject("PartDesign::Body", "Body014")

sketch15 = body15.newObject("Sketcher::SketchObject", "Sketch014")
sketch15.AttachmentSupport = (doc.getObject("XY_Plane014"), [""])
sketch15.MapMode = "FlatFace"
sketch15.AttachmentOffset = App.Placement(App.Vector(0, 0, -15), App.Rotation())
sketch15.addGeometry(Part.LineSegment(App.Vector(30.7, -9.9, 0), App.Vector(37.4, -12.2, 0)), False)
sketch15.addGeometry(Part.LineSegment(App.Vector(37.4, -12.2, 0), App.Vector(38.5, -8.1, 0)), False)
sketch15.addGeometry(Part.LineSegment(App.Vector(38.5, -8.1, 0), App.Vector(31.5, -6.8, 0)), False)
sketch15.addGeometry(Part.LineSegment(App.Vector(31.5, -6.8, 0), App.Vector(30.7, -9.9, 0)), False)
sketch15.addConstraint(Sketcher.Constraint("Coincident", 0, 2, 1, 1))
sketch15.addConstraint(Sketcher.Constraint("Coincident", 1, 2, 2, 1))
sketch15.addConstraint(Sketcher.Constraint("Coincident", 2, 2, 3, 1))
sketch15.addConstraint(Sketcher.Constraint("Coincident", 3, 2, 0, 1))
sketch15.addConstraint(Sketcher.Constraint("Parallel", 1, 3))
sketch15.addConstraint(Sketcher.Constraint("Equal", 0, 2))
sketch15.addConstraint(Sketcher.Constraint("Angle", 1, Q("75 deg")))
sketch15.addConstraint(Sketcher.Constraint("Distance", 3, Q("3.25 mm")))
sketch15.addConstraint(Sketcher.Constraint("DistanceX", 2, 2, 0, 2, Q("5.872999 mm")))
sketch15.addConstraint(Sketcher.Constraint("DistanceY", 0, 2, 3, 2, Q("2.339801 mm")))
sketch15.addConstraint(Sketcher.Constraint("DistanceY", 0, 2, -1, 1, Q("12.245742 mm")))
sketch15.addConstraint(Sketcher.Constraint("DistanceX", -1, 1, 2, 2, Q("31.532119 mm")))
sketch15.setExpression("Constraints[7]", "Params.sketch15_length")
pad15 = body15.newObject("PartDesign::Pad", "Pad014")
pad15.Profile = sketch15
pad15.setExpression("Length", "Params.pad15_length")
body16 = doc.addObject("PartDesign::Body", "Body015")

sketch16 = body16.newObject("Sketcher::SketchObject", "Sketch015")
sketch16.AttachmentSupport = (doc.getObject("XY_Plane015"), [""])
sketch16.MapMode = "FlatFace"
sketch16.AttachmentOffset = App.Placement(App.Vector(0, 0, -15), App.Rotation())
sketch16.addGeometry(Part.LineSegment(App.Vector(37.7, -12.3, 0), App.Vector(43.5, -14.3, 0)), False)
sketch16.addGeometry(Part.LineSegment(App.Vector(43.5, -14.3, 0), App.Vector(44.8, -9.3, 0)), False)
sketch16.addGeometry(Part.LineSegment(App.Vector(44.8, -9.3, 0), App.Vector(38.8, -8.2, 0)), False)
sketch16.addGeometry(Part.LineSegment(App.Vector(38.8, -8.2, 0), App.Vector(37.7, -12.3, 0)), False)
sketch16.addConstraint(Sketcher.Constraint("Coincident", 0, 2, 1, 1))
sketch16.addConstraint(Sketcher.Constraint("Coincident", 1, 2, 2, 1))
sketch16.addConstraint(Sketcher.Constraint("Coincident", 2, 2, 3, 1))
sketch16.addConstraint(Sketcher.Constraint("Coincident", 3, 2, 0, 1))
sketch16.addConstraint(Sketcher.Constraint("Parallel", 1, 3))
sketch16.addConstraint(Sketcher.Constraint("Equal", 0, 2))
sketch16.addConstraint(Sketcher.Constraint("Angle", 1, Q("75 deg")))
sketch16.addConstraint(Sketcher.Constraint("Distance", 1, Q("5.2 mm")))
sketch16.addConstraint(Sketcher.Constraint("DistanceY", 1, 2, 2, 2, Q("1.130702 mm")))
sketch16.addConstraint(Sketcher.Constraint("DistanceX", -1, 1, 0, 2, Q("43.469881 mm")))
sketch16.addConstraint(Sketcher.Constraint("DistanceY", 2, 2, -1, 1, Q("8.185921 mm")))
sketch16.addConstraint(Sketcher.Constraint("DistanceX", 3, 2, 0, 2, Q("5.734528 mm")))
sketch16.setExpression("Constraints[7]", "Params.sketch16_length")
pad16 = body16.newObject("PartDesign::Pad", "Pad015")
pad16.Profile = sketch16
pad16.setExpression("Length", "Params.pad16_length")

doc.recompute()
